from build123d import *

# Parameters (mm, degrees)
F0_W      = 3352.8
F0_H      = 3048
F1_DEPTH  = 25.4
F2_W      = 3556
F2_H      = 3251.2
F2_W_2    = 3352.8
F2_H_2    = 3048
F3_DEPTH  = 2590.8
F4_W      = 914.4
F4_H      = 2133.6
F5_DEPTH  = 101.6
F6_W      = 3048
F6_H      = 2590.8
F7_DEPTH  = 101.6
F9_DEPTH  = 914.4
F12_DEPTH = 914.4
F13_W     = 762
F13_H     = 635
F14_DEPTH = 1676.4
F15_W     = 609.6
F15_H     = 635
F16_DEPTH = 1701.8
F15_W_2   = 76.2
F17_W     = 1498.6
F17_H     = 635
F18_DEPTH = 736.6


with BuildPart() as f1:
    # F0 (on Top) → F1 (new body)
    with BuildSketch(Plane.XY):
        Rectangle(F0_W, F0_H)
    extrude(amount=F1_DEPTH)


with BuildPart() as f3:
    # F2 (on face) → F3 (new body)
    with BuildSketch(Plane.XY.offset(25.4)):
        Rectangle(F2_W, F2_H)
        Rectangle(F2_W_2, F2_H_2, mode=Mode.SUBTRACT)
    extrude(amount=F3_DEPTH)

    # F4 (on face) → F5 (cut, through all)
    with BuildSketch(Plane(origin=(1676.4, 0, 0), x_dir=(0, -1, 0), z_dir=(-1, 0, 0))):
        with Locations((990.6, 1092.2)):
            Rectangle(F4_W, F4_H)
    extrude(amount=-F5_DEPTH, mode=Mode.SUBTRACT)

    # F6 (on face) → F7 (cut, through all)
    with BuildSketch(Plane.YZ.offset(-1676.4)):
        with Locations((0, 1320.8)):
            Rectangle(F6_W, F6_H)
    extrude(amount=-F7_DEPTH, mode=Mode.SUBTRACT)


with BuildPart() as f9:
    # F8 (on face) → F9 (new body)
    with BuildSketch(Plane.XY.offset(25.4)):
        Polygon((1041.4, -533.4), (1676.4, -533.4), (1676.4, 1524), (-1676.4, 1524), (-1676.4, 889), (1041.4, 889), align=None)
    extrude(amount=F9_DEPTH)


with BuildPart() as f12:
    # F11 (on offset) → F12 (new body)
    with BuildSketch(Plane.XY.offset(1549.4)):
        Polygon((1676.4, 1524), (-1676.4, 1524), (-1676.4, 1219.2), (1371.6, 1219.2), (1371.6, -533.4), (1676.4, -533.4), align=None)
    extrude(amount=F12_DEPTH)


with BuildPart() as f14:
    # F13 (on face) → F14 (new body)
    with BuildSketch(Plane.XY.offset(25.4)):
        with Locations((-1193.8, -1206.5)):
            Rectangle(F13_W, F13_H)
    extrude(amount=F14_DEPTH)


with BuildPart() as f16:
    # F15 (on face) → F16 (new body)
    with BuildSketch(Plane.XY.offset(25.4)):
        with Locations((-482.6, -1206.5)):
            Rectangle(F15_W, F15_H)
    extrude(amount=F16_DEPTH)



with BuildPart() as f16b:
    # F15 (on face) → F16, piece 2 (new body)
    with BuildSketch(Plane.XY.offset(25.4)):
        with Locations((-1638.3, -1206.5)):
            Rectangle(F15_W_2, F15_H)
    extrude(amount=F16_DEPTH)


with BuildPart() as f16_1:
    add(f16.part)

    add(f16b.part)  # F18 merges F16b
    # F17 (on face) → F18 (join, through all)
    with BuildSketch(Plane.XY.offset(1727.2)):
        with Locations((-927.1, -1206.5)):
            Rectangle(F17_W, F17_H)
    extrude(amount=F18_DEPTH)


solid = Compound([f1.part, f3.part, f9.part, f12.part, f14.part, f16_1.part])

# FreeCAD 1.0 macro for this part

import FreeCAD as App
import Part
import Sketcher
Q = App.Units.Quantity

doc = App.newDocument("Part")
body = doc.addObject("PartDesign::Body", "Body")

sketch1 = doc.addObject("Sketcher::SketchObject", "Sketch")
body.addObject(sketch1)
sketch1.AttachmentSupport = (doc.XY_Plane, [""])
sketch1.MapMode = "FlatFace"
sketch1.addGeometry(Part.LineSegment(App.Vector(-1676, 1524, 0), App.Vector(-1676, -1524, 0)), False)
sketch1.addGeometry(Part.LineSegment(App.Vector(-1676, -1524, 0), App.Vector(1676, -1524, 0)), False)
sketch1.addGeometry(Part.LineSegment(App.Vector(1676, -1524, 0), App.Vector(1676, 1524, 0)), False)
sketch1.addGeometry(Part.LineSegment(App.Vector(1676, 1524, 0), App.Vector(-1676, 1524, 0)), False)
sketch1.addConstraint(Sketcher.Constraint("Coincident", 0, 2, 1, 1))
sketch1.addConstraint(Sketcher.Constraint("Coincident", 1, 2, 2, 1))
sketch1.addConstraint(Sketcher.Constraint("Coincident", 2, 2, 3, 1))
sketch1.addConstraint(Sketcher.Constraint("Coincident", 3, 2, 0, 1))
sketch1.addConstraint(Sketcher.Constraint("Vertical", 0))
sketch1.addConstraint(Sketcher.Constraint("Horizontal", 1))
sketch1.addConstraint(Sketcher.Constraint("Vertical", 2))
sketch1.addConstraint(Sketcher.Constraint("Horizontal", 3))
sketch1.addConstraint(Sketcher.Constraint("Symmetric", 0, 2, 2, 2, -1, 1))
sketch1.addConstraint(Sketcher.Constraint("DistanceX", 1, 1, 1, 2, Q("132 in")))
sketch1.addConstraint(Sketcher.Constraint("DistanceY", 0, 2, 0, 1, Q("120 in")))
pad1 = doc.addObject("PartDesign::Pad", "Pad")
body.addObject(pad1)
pad1.Profile = sketch1
pad1.Length = Q("1 in")
body2 = doc.addObject("PartDesign::Body", "Body001")

sketch2 = doc.addObject("Sketcher::SketchObject", "Sketch001")
body2.addObject(sketch2)
sketch2.AttachmentSupport = (doc.getObject("XY_Plane001"), [""])
sketch2.MapMode = "FlatFace"
sketch2.AttachmentOffset = App.Placement(App.Vector(0, 0, 1 * 25.4), App.Rotation())
sketch2.addGeometry(Part.LineSegment(App.Vector(-1778, 1626, 0), App.Vector(-1778, -1626, 0)), False)
sketch2.addGeometry(Part.LineSegment(App.Vector(-1778, -1626, 0), App.Vector(1778, -1626, 0)), False)
sketch2.addGeometry(Part.LineSegment(App.Vector(1778, -1626, 0), App.Vector(1778, 1626, 0)), False)
sketch2.addGeometry(Part.LineSegment(App.Vector(1778, 1626, 0), App.Vector(-1778, 1626, 0)), False)
sketch2.addGeometry(Part.LineSegment(App.Vector(1676, -1524, 0), App.Vector(-1676, -1524, 0)), False)
sketch2.addGeometry(Part.LineSegment(App.Vector(-1676, -1524, 0), App.Vector(-1676, 1524, 0)), False)
sketch2.addGeometry(Part.LineSegment(App.Vector(-1676, 1524, 0), App.Vector(1676, 1524, 0)), False)
sketch2.addGeometry(Part.LineSegment(App.Vector(1676, 1524, 0), App.Vector(1676, -1524, 0)), False)
sketch2.addConstraint(Sketcher.Constraint("Coincident", 0, 2, 1, 1))
sketch2.addConstraint(Sketcher.Constraint("Coincident", 1, 2, 2, 1))
sketch2.addConstraint(Sketcher.Constraint("Coincident", 2, 2, 3, 1))
sketch2.addConstraint(Sketcher.Constraint("Coincident", 3, 2, 0, 1))
sketch2.addConstraint(Sketcher.Constraint("Coincident", 4, 2, 5, 1))
sketch2.addConstraint(Sketcher.Constraint("Coincident", 5, 2, 6, 1))
sketch2.addConstraint(Sketcher.Constraint("Coincident", 6, 2, 7, 1))
sketch2.addConstraint(Sketcher.Constraint("Coincident", 7, 2, 4, 1))
sketch2.addConstraint(Sketcher.Constraint("Vertical", 0))
sketch2.addConstraint(Sketcher.Constraint("Horizontal", 1))
sketch2.addConstraint(Sketcher.Constraint("Vertical", 2))
sketch2.addConstraint(Sketcher.Constraint("Horizontal", 3))
sketch2.addConstraint(Sketcher.Constraint("Horizontal", 4))
sketch2.addConstraint(Sketcher.Constraint("Vertical", 5))
sketch2.addConstraint(Sketcher.Constraint("Horizontal", 6))
sketch2.addConstraint(Sketcher.Constraint("Vertical", 7))
sketch2.addConstraint(Sketcher.Constraint("Symmetric", 0, 2, 2, 2, -1, 1))
sketch2.addConstraint(Sketcher.Constraint("Symmetric", 4, 2, 6, 2, -1, 1))
sketch2.addConstraint(Sketcher.Constraint("DistanceX", 1, 1, 1, 2, Q("140 in")))
sketch2.addConstraint(Sketcher.Constraint("DistanceX", 4, 2, 4, 1, Q("132 in")))
sketch2.addConstraint(Sketcher.Constraint("DistanceY", 0, 2, 0, 1, Q("128 in")))
sketch2.addConstraint(Sketcher.Constraint("DistanceY", 5, 1, 5, 2, Q("120 in")))
pad2 = doc.addObject("PartDesign::Pad", "Pad001")
body2.addObject(pad2)
pad2.Profile = sketch2
pad2.Length = Q("102 in")

sketch3 = doc.addObject("Sketcher::SketchObject", "Sketch002")
body2.addObject(sketch3)
sketch3.AttachmentSupport = (doc.getObject("YZ_Plane001"), [""])
sketch3.MapMode = "FlatFace"
sketch3.AttachmentOffset = App.Placement(App.Vector(0, 0, 66 * 25.4), App.Rotation())
sketch3.addGeometry(Part.LineSegment(App.Vector(-533, 2159, 0), App.Vector(-533, 25, 0)), False)
sketch3.addGeometry(Part.LineSegment(App.Vector(-533, 25, 0), App.Vector(-1448, 25, 0)), False)
sketch3.addGeometry(Part.LineSegment(App.Vector(-1448, 25, 0), App.Vector(-1448, 2159, 0)), False)
sketch3.addGeometry(Part.LineSegment(App.Vector(-1448, 2159, 0), App.Vector(-533, 2159, 0)), False)
sketch3.addConstraint(Sketcher.Constraint("Coincident", 0, 2, 1, 1))
sketch3.addConstraint(Sketcher.Constraint("Coincident", 1, 2, 2, 1))
sketch3.addConstraint(Sketcher.Constraint("Coincident", 2, 2, 3, 1))
sketch3.addConstraint(Sketcher.Constraint("Coincident", 3, 2, 0, 1))
sketch3.addConstraint(Sketcher.Constraint("Vertical", 0))
sketch3.addConstraint(Sketcher.Constraint("Horizontal", 1))
sketch3.addConstraint(Sketcher.Constraint("Vertical", 2))
sketch3.addConstraint(Sketcher.Constraint("Horizontal", 3))
sketch3.addConstraint(Sketcher.Constraint("DistanceX", 1, 2, 1, 1, Q("36 in")))
sketch3.addConstraint(Sketcher.Constraint("DistanceY", 0, 2, 0, 1, Q("84 in")))
sketch3.addConstraint(Sketcher.Constraint("DistanceX", 0, 2, -1, 1, Q("21 in")))
sketch3.addConstraint(Sketcher.Constraint("DistanceY", -1, 1, 0, 2, Q("1 in")))
pocket1 = doc.addObject("PartDesign::Pocket", "Pocket")
body2.addObject(pocket1)
pocket1.Profile = sketch3
pocket1.Type = "ThroughAll"
pocket1.Reversed = True

sketch4 = doc.addObject("Sketcher::SketchObject", "Sketch003")
body2.addObject(sketch4)
sketch4.AttachmentSupport = (doc.getObject("YZ_Plane001"), [""])
sketch4.MapMode = "FlatFace"
sketch4.AttachmentOffset = App.Placement(App.Vector(0, 0, -66 * 25.4), App.Rotation())
sketch4.addGeometry(Part.LineSegment(App.Vector(-1524, 2616, 0), App.Vector(-1524, 25, 0)), False)
sketch4.addGeometry(Part.LineSegment(App.Vector(-1524, 25, 0), App.Vector(1524, 25, 0)), False)
sketch4.addGeometry(Part.LineSegment(App.Vector(1524, 25, 0), App.Vector(1524, 2616, 0)), False)
sketch4.addGeometry(Part.LineSegment(App.Vector(1524, 2616, 0), App.Vector(-1524, 2616, 0)), False)
sketch4.addConstraint(Sketcher.Constraint("Coincident", 0, 2, 1, 1))
sketch4.addConstraint(Sketcher.Constraint("Coincident", 1, 2, 2, 1))
sketch4.addConstraint(Sketcher.Constraint("Coincident", 2, 2, 3, 1))
sketch4.addConstraint(Sketcher.Constraint("Coincident", 3, 2, 0, 1))
sketch4.addConstraint(Sketcher.Constraint("Vertical", 0))
sketch4.addConstraint(Sketcher.Constraint("Horizontal", 1))
sketch4.addConstraint(Sketcher.Constraint("Vertical", 2))
sketch4.addConstraint(Sketcher.Constraint("Horizontal", 3))
sketch4.addConstraint(Sketcher.Constraint("DistanceX", 1, 1, 1, 2, Q("120 in")))
sketch4.addConstraint(Sketcher.Constraint("DistanceY", 0, 2, 0, 1, Q("102 in")))
sketch4.addConstraint(Sketcher.Constraint("DistanceX", 0, 2, -1, 1, Q("60 in")))
sketch4.addConstraint(Sketcher.Constraint("DistanceY", -1, 1, 0, 2, Q("1 in")))
pocket2 = doc.addObject("PartDesign::Pocket", "Pocket001")
body2.addObject(pocket2)
pocket2.Profile = sketch4
pocket2.Type = "ThroughAll"
body3 = doc.addObject("PartDesign::Body", "Body002")

sketch5 = doc.addObject("Sketcher::SketchObject", "Sketch004")
body3.addObject(sketch5)
sketch5.AttachmentSupport = (doc.getObject("XY_Plane002"), [""])
sketch5.MapMode = "FlatFace"
sketch5.AttachmentOffset = App.Placement(App.Vector(0, 0, 1 * 25.4), App.Rotation())
sketch5.addGeometry(Part.LineSegment(App.Vector(1041, -533, 0), App.Vector(1676, -533, 0)), False)
sketch5.addGeometry(Part.LineSegment(App.Vector(1676, -533, 0), App.Vector(1676, 1524, 0)), False)
sketch5.addGeometry(Part.LineSegment(App.Vector(1676, 1524, 0), App.Vector(-1676, 1524, 0)), False)
sketch5.addGeometry(Part.LineSegment(App.Vector(-1676, 1524, 0), App.Vector(-1676, 889, 0)), False)
sketch5.addGeometry(Part.LineSegment(App.Vector(-1676, 889, 0), App.Vector(1041, 889, 0)), False)
sketch5.addGeometry(Part.LineSegment(App.Vector(1041, 889, 0), App.Vector(1041, -533, 0)), False)
sketch5.addConstraint(Sketcher.Constraint("Coincident", 0, 2, 1, 1))
sketch5.addConstraint(Sketcher.Constraint("Coincident", 1, 2, 2, 1))
sketch5.addConstraint(Sketcher.Constraint("Coincident", 2, 2, 3, 1))
sketch5.addConstraint(Sketcher.Constraint("Coincident", 3, 2, 4, 1))
sketch5.addConstraint(Sketcher.Constraint("Coincident", 4, 2, 5, 1))
sketch5.addConstraint(Sketcher.Constraint("Coincident", 5, 2, 0, 1))
sketch5.addConstraint(Sketcher.Constraint("Horizontal", 0))
sketch5.addConstraint(Sketcher.Constraint("Vertical", 1))
sketch5.addConstraint(Sketcher.Constraint("Horizontal", 2))
sketch5.addConstraint(Sketcher.Constraint("Vertical", 3))
sketch5.addConstraint(Sketcher.Constraint("Horizontal", 4))
sketch5.addConstraint(Sketcher.Constraint("Vertical", 5))
sketch5.addConstraint(Sketcher.Constraint("Equal", 0, 3))
sketch5.addConstraint(Sketcher.Constraint("DistanceX", 0, 1, 0, 2, Q("25 in")))
sketch5.addConstraint(Sketcher.Constraint("DistanceX", 2, 2, 2, 1, Q("132 in")))
sketch5.addConstraint(Sketcher.Constraint("DistanceY", 1, 1, 1, 2, Q("81 in")))
sketch5.addConstraint(Sketcher.Constraint("DistanceX", -1, 1, 0, 2, Q("66 in")))
sketch5.addConstraint(Sketcher.Constraint("DistanceY", 0, 2, -1, 1, Q("21 in")))
pad3 = doc.addObject("PartDesign::Pad", "Pad002")
body3.addObject(pad3)
pad3.Profile = sketch5
pad3.Length = Q("36 in")
body4 = doc.addObject("PartDesign::Body", "Body003")

sketch6 = doc.addObject("Sketcher::SketchObject", "Sketch005")
body4.addObject(sketch6)
sketch6.AttachmentSupport = (doc.getObject("XY_Plane003"), [""])
sketch6.MapMode = "FlatFace"
sketch6.AttachmentOffset = App.Placement(App.Vector(0, 0, 61 * 25.4), App.Rotation())
sketch6.addGeometry(Part.LineSegment(App.Vector(1676, 1524, 0), App.Vector(-1676, 1524, 0)), False)
sketch6.addGeometry(Part.LineSegment(App.Vector(-1676, 1524, 0), App.Vector(-1676, 1219, 0)), False)
sketch6.addGeometry(Part.LineSegment(App.Vector(-1676, 1219, 0), App.Vector(1372, 1219, 0)), False)
sketch6.addGeometry(Part.LineSegment(App.Vector(1372, 1219, 0), App.Vector(1372, -533, 0)), False)
sketch6.addGeometry(Part.LineSegment(App.Vector(1372, -533, 0), App.Vector(1676, -533, 0)), False)
sketch6.addGeometry(Part.LineSegment(App.Vector(1676, -533, 0), App.Vector(1676, 1524, 0)), False)
sketch6.addConstraint(Sketcher.Constraint("Coincident", 0, 2, 1, 1))
sketch6.addConstraint(Sketcher.Constraint("Coincident", 1, 2, 2, 1))
sketch6.addConstraint(Sketcher.Constraint("Coincident", 2, 2, 3, 1))
sketch6.addConstraint(Sketcher.Constraint("Coincident", 3, 2, 4, 1))
sketch6.addConstraint(Sketcher.Constraint("Coincident", 4, 2, 5, 1))
sketch6.addConstraint(Sketcher.Constraint("Coincident", 5, 2, 0, 1))
sketch6.addConstraint(Sketcher.Constraint("Horizontal", 0))
sketch6.addConstraint(Sketcher.Constraint("Vertical", 1))
sketch6.addConstraint(Sketcher.Constraint("Horizontal", 2))
sketch6.addConstraint(Sketcher.Constraint("Vertical", 3))
sketch6.addConstraint(Sketcher.Constraint("Horizontal", 4))
sketch6.addConstraint(Sketcher.Constraint("Vertical", 5))
sketch6.addConstraint(Sketcher.Constraint("Equal", 4, 1))
sketch6.addConstraint(Sketcher.Constraint("DistanceX", 0, 2, 0, 1, Q("132 in")))
sketch6.addConstraint(Sketcher.Constraint("DistanceX", 2, 1, 2, 2, Q("120 in")))
sketch6.addConstraint(Sketcher.Constraint("DistanceY", 3, 2, 3, 1, Q("69 in")))
sketch6.addConstraint(Sketcher.Constraint("DistanceX", 0, 2, -1, 1, Q("66 in")))
sketch6.addConstraint(Sketcher.Constraint("DistanceY", -1, 1, 0, 2, Q("60 in")))
pad4 = doc.addObject("PartDesign::Pad", "Pad003")
body4.addObject(pad4)
pad4.Profile = sketch6
pad4.Length = Q("36 in")
body5 = doc.addObject("PartDesign::Body", "Body004")

sketch7 = doc.addObject("Sketcher::SketchObject", "Sketch006")
body5.addObject(sketch7)
sketch7.AttachmentSupport = (doc.getObject("XY_Plane004"), [""])
sketch7.MapMode = "FlatFace"
sketch7.AttachmentOffset = App.Placement(App.Vector(0, 0, 1 * 25.4), App.Rotation())
sketch7.addGeometry(Part.LineSegment(App.Vector(-1575, -889, 0), App.Vector(-1575, -1524, 0)), False)
sketch7.addGeometry(Part.LineSegment(App.Vector(-1575, -1524, 0), App.Vector(-813, -1524, 0)), False)
sketch7.addGeometry(Part.LineSegment(App.Vector(-813, -1524, 0), App.Vector(-813, -889, 0)), False)
sketch7.addGeometry(Part.LineSegment(App.Vector(-813, -889, 0), App.Vector(-1575, -889, 0)), False)
sketch7.addConstraint(Sketcher.Constraint("Coincident", 0, 2, 1, 1))
sketch7.addConstraint(Sketcher.Constraint("Coincident", 1, 2, 2, 1))
sketch7.addConstraint(Sketcher.Constraint("Coincident", 2, 2, 3, 1))
sketch7.addConstraint(Sketcher.Constraint("Coincident", 3, 2, 0, 1))
sketch7.addConstraint(Sketcher.Constraint("Vertical", 0))
sketch7.addConstraint(Sketcher.Constraint("Horizontal", 1))
sketch7.addConstraint(Sketcher.Constraint("Vertical", 2))
sketch7.addConstraint(Sketcher.Constraint("Horizontal", 3))
sketch7.addConstraint(Sketcher.Constraint("DistanceX", 1, 1, 1, 2, Q("30 in")))
sketch7.addConstraint(Sketcher.Constraint("DistanceY", 0, 2, 0, 1, Q("25 in")))
sketch7.addConstraint(Sketcher.Constraint("DistanceX", 0, 2, -1, 1, Q("62 in")))
sketch7.addConstraint(Sketcher.Constraint("DistanceY", 0, 2, -1, 1, Q("60 in")))
pad5 = doc.addObject("PartDesign::Pad", "Pad004")
body5.addObject(pad5)
pad5.Profile = sketch7
pad5.Length = Q("66 in")
body6 = doc.addObject("PartDesign::Body", "Body005")

sketch8 = doc.addObject("Sketcher::SketchObject", "Sketch007")
body6.addObject(sketch8)
sketch8.AttachmentSupport = (doc.getObject("XY_Plane005"), [""])
sketch8.MapMode = "FlatFace"
sketch8.AttachmentOffset = App.Placement(App.Vector(0, 0, 1 * 25.4), App.Rotation())
sketch8.addGeometry(Part.LineSegment(App.Vector(-787, -889, 0), App.Vector(-787, -1524, 0)), False)
sketch8.addGeometry(Part.LineSegment(App.Vector(-787, -1524, 0), App.Vector(-178, -1524, 0)), False)
sketch8.addGeometry(Part.LineSegment(App.Vector(-178, -1524, 0), App.Vector(-178, -889, 0)), False)
sketch8.addGeometry(Part.LineSegment(App.Vector(-178, -889, 0), App.Vector(-787, -889, 0)), False)
sketch8.addConstraint(Sketcher.Constraint("Coincident", 0, 2, 1, 1))
sketch8.addConstraint(Sketcher.Constraint("Coincident", 1, 2, 2, 1))
sketch8.addConstraint(Sketcher.Constraint("Coincident", 2, 2, 3, 1))
sketch8.addConstraint(Sketcher.Constraint("Coincident", 3, 2, 0, 1))
sketch8.addConstraint(Sketcher.Constraint("Vertical", 0))
sketch8.addConstraint(Sketcher.Constraint("Horizontal", 1))
sketch8.addConstraint(Sketcher.Constraint("Vertical", 2))
sketch8.addConstraint(Sketcher.Constraint("Horizontal", 3))
sketch8.addConstraint(Sketcher.Constraint("DistanceX", 1, 1, 1, 2, Q("24 in")))
sketch8.addConstraint(Sketcher.Constraint("DistanceY", 0, 2, 0, 1, Q("25 in")))
sketch8.addConstraint(Sketcher.Constraint("DistanceX", 0, 2, -1, 1, Q("31 in")))
sketch8.addConstraint(Sketcher.Constraint("DistanceY", 0, 2, -1, 1, Q("60 in")))
pad6 = doc.addObject("PartDesign::Pad", "Pad005")
body6.addObject(pad6)
pad6.Profile = sketch8
pad6.Length = Q("67 in")
body7 = doc.addObject("PartDesign::Body", "Body006")

sketch9 = doc.addObject("Sketcher::SketchObject", "Sketch008")
body7.addObject(sketch9)
sketch9.AttachmentSupport = (doc.getObject("XY_Plane006"), [""])
sketch9.MapMode = "FlatFace"
sketch9.AttachmentOffset = App.Placement(App.Vector(0, 0, 1 * 25.4), App.Rotation())
sketch9.addGeometry(Part.LineSegment(App.Vector(-1676, -889, 0), App.Vector(-1676, -1524, 0)), False)
sketch9.addGeometry(Part.LineSegment(App.Vector(-1676, -1524, 0), App.Vector(-1600, -1524, 0)), False)
sketch9.addGeometry(Part.LineSegment(App.Vector(-1600, -1524, 0), App.Vector(-1600, -889, 0)), False)
sketch9.addGeometry(Part.LineSegment(App.Vector(-1600, -889, 0), App.Vector(-1676, -889, 0)), False)
sketch9.addConstraint(Sketcher.Constraint("Coincident", 0, 2, 1, 1))
sketch9.addConstraint(Sketcher.Constraint("Coincident", 1, 2, 2, 1))
sketch9.addConstraint(Sketcher.Constraint("Coincident", 2, 2, 3, 1))
sketch9.addConstraint(Sketcher.Constraint("Coincident", 3, 2, 0, 1))
sketch9.addConstraint(Sketcher.Constraint("Vertical", 0))
sketch9.addConstraint(Sketcher.Constraint("Horizontal", 1))
sketch9.addConstraint(Sketcher.Constraint("Vertical", 2))
sketch9.addConstraint(Sketcher.Constraint("Horizontal", 3))
sketch9.addConstraint(Sketcher.Constraint("DistanceX", 1, 1, 1, 2, Q("3 in")))
sketch9.addConstraint(Sketcher.Constraint("DistanceY", 0, 2, 0, 1, Q("25 in")))
sketch9.addConstraint(Sketcher.Constraint("DistanceX", 0, 2, -1, 1, Q("66 in")))
sketch9.addConstraint(Sketcher.Constraint("DistanceY", 0, 2, -1, 1, Q("60 in")))
pad7 = doc.addObject("PartDesign::Pad", "Pad006")
body7.addObject(pad7)
pad7.Profile = sketch9
pad7.Length = Q("67 in")
body6.AllowCompound = True
doc.recompute()

boolean = doc.addObject("PartDesign::Boolean", "Boolean")
body6.addObject(boolean)
boolean.Type = "Fuse"
boolean.addObjects([body7])

sketch10 = doc.addObject("Sketcher::SketchObject", "Sketch009")
body6.addObject(sketch10)
sketch10.AttachmentSupport = (doc.getObject("XY_Plane005"), [""])
sketch10.MapMode = "FlatFace"
sketch10.AttachmentOffset = App.Placement(App.Vector(0, 0, 68 * 25.4), App.Rotation())
sketch10.addGeometry(Part.LineSegment(App.Vector(-1676, -889, 0), App.Vector(-1676, -1524, 0)), False)
sketch10.addGeometry(Part.LineSegment(App.Vector(-1676, -1524, 0), App.Vector(-178, -1524, 0)), False)
sketch10.addGeometry(Part.LineSegment(App.Vector(-178, -1524, 0), App.Vector(-178, -889, 0)), False)
sketch10.addGeometry(Part.LineSegment(App.Vector(-178, -889, 0), App.Vector(-1676, -889, 0)), False)
sketch10.addConstraint(Sketcher.Constraint("Coincident", 0, 2, 1, 1))
sketch10.addConstraint(Sketcher.Constraint("Coincident", 1, 2, 2, 1))
sketch10.addConstraint(Sketcher.Constraint("Coincident", 2, 2, 3, 1))
sketch10.addConstraint(Sketcher.Constraint("Coincident", 3, 2, 0, 1))
sketch10.addConstraint(Sketcher.Constraint("Vertical", 0))
sketch10.addConstraint(Sketcher.Constraint("Horizontal", 1))
sketch10.addConstraint(Sketcher.Constraint("Vertical", 2))
sketch10.addConstraint(Sketcher.Constraint("Horizontal", 3))
sketch10.addConstraint(Sketcher.Constraint("DistanceX", 1, 1, 1, 2, Q("59 in")))
sketch10.addConstraint(Sketcher.Constraint("DistanceY", 0, 2, 0, 1, Q("25 in")))
sketch10.addConstraint(Sketcher.Constraint("DistanceX", 0, 2, -1, 1, Q("66 in")))
sketch10.addConstraint(Sketcher.Constraint("DistanceY", 0, 2, -1, 1, Q("60 in")))
pad8 = doc.addObject("PartDesign::Pad", "Pad007")
body6.addObject(pad8)
pad8.Profile = sketch10
pad8.Length = Q("29 in")

doc.recompute()
